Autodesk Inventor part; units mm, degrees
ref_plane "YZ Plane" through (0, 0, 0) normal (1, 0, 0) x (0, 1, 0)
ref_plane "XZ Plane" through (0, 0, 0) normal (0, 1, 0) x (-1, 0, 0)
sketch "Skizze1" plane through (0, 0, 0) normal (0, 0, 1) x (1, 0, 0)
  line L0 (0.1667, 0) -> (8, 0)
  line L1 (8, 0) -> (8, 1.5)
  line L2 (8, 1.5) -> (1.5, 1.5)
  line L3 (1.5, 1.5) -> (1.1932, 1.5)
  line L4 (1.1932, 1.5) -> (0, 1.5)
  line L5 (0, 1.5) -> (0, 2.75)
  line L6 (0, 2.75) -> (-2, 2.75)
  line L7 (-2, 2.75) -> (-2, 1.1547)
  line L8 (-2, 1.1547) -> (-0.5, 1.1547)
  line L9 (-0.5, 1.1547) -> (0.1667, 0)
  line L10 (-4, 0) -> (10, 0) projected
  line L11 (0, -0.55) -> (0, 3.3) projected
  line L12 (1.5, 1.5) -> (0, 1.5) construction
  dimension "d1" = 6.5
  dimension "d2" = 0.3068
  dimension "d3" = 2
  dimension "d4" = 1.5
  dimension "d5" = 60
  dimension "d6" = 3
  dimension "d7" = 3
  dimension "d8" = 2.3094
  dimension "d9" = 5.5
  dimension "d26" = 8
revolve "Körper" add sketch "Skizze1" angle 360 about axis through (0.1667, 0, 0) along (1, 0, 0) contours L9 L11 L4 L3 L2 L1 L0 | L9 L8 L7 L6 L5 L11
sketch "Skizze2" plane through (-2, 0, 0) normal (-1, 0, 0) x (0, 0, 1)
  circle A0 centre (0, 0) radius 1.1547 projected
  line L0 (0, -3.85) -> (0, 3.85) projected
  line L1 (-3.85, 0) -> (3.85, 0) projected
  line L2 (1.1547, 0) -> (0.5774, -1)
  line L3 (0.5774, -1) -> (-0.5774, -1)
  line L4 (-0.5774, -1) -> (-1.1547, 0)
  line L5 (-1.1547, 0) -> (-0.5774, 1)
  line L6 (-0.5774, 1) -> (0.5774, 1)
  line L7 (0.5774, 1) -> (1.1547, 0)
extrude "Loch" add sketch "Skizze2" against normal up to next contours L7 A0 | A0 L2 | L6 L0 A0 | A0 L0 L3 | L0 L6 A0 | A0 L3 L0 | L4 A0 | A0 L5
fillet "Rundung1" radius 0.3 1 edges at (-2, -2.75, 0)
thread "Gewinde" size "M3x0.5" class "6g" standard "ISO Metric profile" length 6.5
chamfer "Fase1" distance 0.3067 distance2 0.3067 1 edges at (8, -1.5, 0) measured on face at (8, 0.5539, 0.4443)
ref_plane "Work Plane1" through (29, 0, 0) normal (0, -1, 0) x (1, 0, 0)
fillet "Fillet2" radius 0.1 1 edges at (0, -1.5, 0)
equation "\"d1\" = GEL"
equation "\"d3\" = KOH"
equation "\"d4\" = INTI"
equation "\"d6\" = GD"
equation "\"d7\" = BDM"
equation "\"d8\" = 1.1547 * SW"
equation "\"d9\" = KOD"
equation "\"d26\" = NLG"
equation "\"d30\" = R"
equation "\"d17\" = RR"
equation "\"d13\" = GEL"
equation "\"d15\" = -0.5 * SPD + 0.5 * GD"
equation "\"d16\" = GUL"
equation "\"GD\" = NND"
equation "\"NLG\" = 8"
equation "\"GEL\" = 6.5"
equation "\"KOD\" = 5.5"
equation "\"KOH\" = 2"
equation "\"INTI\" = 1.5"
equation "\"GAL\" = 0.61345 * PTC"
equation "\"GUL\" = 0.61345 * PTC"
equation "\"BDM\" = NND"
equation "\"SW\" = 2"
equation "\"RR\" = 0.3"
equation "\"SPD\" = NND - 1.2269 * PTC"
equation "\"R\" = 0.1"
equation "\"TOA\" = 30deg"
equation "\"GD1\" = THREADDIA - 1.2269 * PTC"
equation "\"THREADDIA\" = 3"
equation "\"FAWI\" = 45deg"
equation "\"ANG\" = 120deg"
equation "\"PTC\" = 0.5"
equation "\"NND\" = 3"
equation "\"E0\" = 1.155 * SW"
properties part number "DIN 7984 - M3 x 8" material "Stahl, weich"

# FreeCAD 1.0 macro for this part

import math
import FreeCAD as App
import Part
import Sketcher
Q = App.Units.Quantity


def edges_at(feature, points):
    """Names of the edges that pass closest to the given points."""
    edges = feature.Shape.Edges
    near = lambda p: min(range(len(edges)), key=lambda i: edges[i].distToShape(Part.Vertex(*p))[0])
    return sorted({f"Edge{near(p) + 1}" for p in points})

doc = App.newDocument("Part")
body = doc.addObject("PartDesign::Body", "Body")

# Sketch on XY plane
sketch1 = body.newObject("Sketcher::SketchObject", "Sketch")
sketch1.AttachmentSupport = (doc.getObject("XY_Plane"), [""])
sketch1.MapMode = "FlatFace"
sketch1.addGeometry([
    Part.LineSegment(App.Vector(0.2, 0, 0), App.Vector(8, 0, 0)),  # 0
    Part.LineSegment(App.Vector(8, 0, 0), App.Vector(8, 1.5, 0)),  # 1
    Part.LineSegment(App.Vector(8, 1.5, 0), App.Vector(0, 1.5, 0)),  # 2
    Part.LineSegment(App.Vector(0, 1.5, 0), App.Vector(0, 2.8, 0)),  # 3
    Part.LineSegment(App.Vector(0, 2.8, 0), App.Vector(-2, 2.8, 0)),  # 4
    Part.LineSegment(App.Vector(-2, 2.8, 0), App.Vector(-2, 1.2, 0)),  # 5
    Part.LineSegment(App.Vector(-2, 1.2, 0), App.Vector(-0.5, 1.2, 0)),  # 6
    Part.LineSegment(App.Vector(-0.5, 1.2, 0), App.Vector(0.2, 0, 0)),  # 7
], False)
sketch1.addConstraint([
    Sketcher.Constraint("Coincident", 0, 2, 1, 1),
    Sketcher.Constraint("Coincident", 1, 2, 2, 1),
    Sketcher.Constraint("Coincident", 2, 2, 3, 1),
    Sketcher.Constraint("Coincident", 3, 2, 4, 1),
    Sketcher.Constraint("Coincident", 4, 2, 5, 1),
    Sketcher.Constraint("Coincident", 5, 2, 6, 1),
    Sketcher.Constraint("Coincident", 6, 2, 7, 1),
    Sketcher.Constraint("Coincident", 7, 2, 0, 1),
    Sketcher.Constraint("Horizontal", 0),
    Sketcher.Constraint("Vertical", 1),
    Sketcher.Constraint("Horizontal", 2),
    Sketcher.Constraint("Vertical", 3),
    Sketcher.Constraint("Horizontal", 4),
    Sketcher.Constraint("Vertical", 5),
    Sketcher.Constraint("Horizontal", 6),
    Sketcher.Constraint("PointOnObject", 0, 2, -1),
    Sketcher.Constraint("PointOnObject", 2, 2, -2),
    Sketcher.Constraint("Equal", 6, 1),
    Sketcher.Constraint("DistanceX", 2, 2, 2, 1, Q("8 mm")),
    Sketcher.Constraint("DistanceX", 4, 2, 4, 1, Q("2 mm")),
    Sketcher.Constraint("DistanceX", 6, 1, 6, 2, Q("1.5 mm")),
    Sketcher.Constraint("DistanceY", 3, 1, 3, 2, Q("1.25 mm")),
    Sketcher.Constraint("DistanceX", 0, 1, 0, 2, Q("7.8333 mm")),
    Sketcher.Constraint("DistanceY", 5, 2, 5, 1, Q("1.5953 mm")),
])
revolution = body.newObject("PartDesign::Revolution", "Revolution")
revolution.Profile = sketch1
revolution.ReferenceAxis = (sketch1, ["H_Axis"])
revolution.Angle = 360

# Sketch on YZ plane
sketch2 = body.newObject("Sketcher::SketchObject", "Sketch001")
sketch2.AttachmentSupport = (doc.getObject("YZ_Plane"), [""])
sketch2.MapMode = "FlatFace"
sketch2.AttachmentOffset = App.Placement(App.Vector(0, 0, -2), App.Rotation())
sketch2.addGeometry([
    Part.LineSegment(App.Vector(1, 0.6, 0), App.Vector(0, 1.2, 0)),  # 0
    Part.ArcOfCircle(Part.Circle(App.Vector(0, 0, 0), App.Vector(0, 0, 1), 1.2), math.radians(30), math.radians(90)),  # 1
    Part.ArcOfCircle(Part.Circle(App.Vector(0, 0, 0), App.Vector(0, 0, 1), 1.2), math.radians(90), math.radians(150)),  # 2
    Part.LineSegment(App.Vector(0, 1.2, 0), App.Vector(-1, 0.6, 0)),  # 3
    Part.ArcOfCircle(Part.Circle(App.Vector(0, 0, 0), App.Vector(0, 0, 1), 1.2), math.radians(-30), math.radians(30)),  # 4
    Part.LineSegment(App.Vector(1, 0.6, 0), App.Vector(1, -0.6, 0)),  # 5
    Part.LineSegment(App.Vector(-1, 0.6, 0), App.Vector(-1, -0.6, 0)),  # 6
    Part.ArcOfCircle(Part.Circle(App.Vector(0, 0, 0), App.Vector(0, 0, 1), 1.2), math.radians(150), math.radians(210)),  # 7
    Part.LineSegment(App.Vector(-1, -0.6, 0), App.Vector(0, -1.2, 0)),  # 8
    Part.ArcOfCircle(Part.Circle(App.Vector(0, 0, 0), App.Vector(0, 0, 1), 1.2), math.radians(-150), math.radians(-90)),  # 9
    Part.ArcOfCircle(Part.Circle(App.Vector(0, 0, 0), App.Vector(0, 0, 1), 1.2), math.radians(-90), math.radians(-30)),  # 10
    Part.LineSegment(App.Vector(0, -1.2, 0), App.Vector(1, -0.6, 0)),  # 11
], False)
sketch2.addConstraint([
    Sketcher.Constraint("Coincident", 0, 1, 1, 1),
    Sketcher.Constraint("Coincident", 1, 2, 0, 2),
    Sketcher.Constraint("Coincident", 2, 1, 3, 1),
    Sketcher.Constraint("Coincident", 3, 2, 2, 2),
    Sketcher.Constraint("Coincident", 4, 1, 5, 2),
    Sketcher.Constraint("Coincident", 5, 1, 4, 2),
    Sketcher.Constraint("Coincident", 6, 1, 7, 1),
    Sketcher.Constraint("Coincident", 7, 2, 6, 2),
    Sketcher.Constraint("Coincident", 8, 1, 9, 1),
    Sketcher.Constraint("Coincident", 9, 2, 8, 2),
    Sketcher.Constraint("Coincident", 10, 1, 11, 1),
    Sketcher.Constraint("Coincident", 11, 2, 10, 2),
    Sketcher.Constraint("Vertical", 5),
    Sketcher.Constraint("Vertical", 6),
    Sketcher.Constraint("Coincident", 1, 3, -1, 1),
    Sketcher.Constraint("Coincident", 2, 3, -1, 1),
    Sketcher.Constraint("Coincident", 4, 3, -1, 1),
    Sketcher.Constraint("Coincident", 7, 3, -1, 1),
    Sketcher.Constraint("Coincident", 9, 3, -1, 1),
    Sketcher.Constraint("Coincident", 10, 3, -1, 1),
    Sketcher.Constraint("Coincident", 2, 1, 1, 2),
    Sketcher.Constraint("Coincident", 5, 1, 0, 1),
    Sketcher.Constraint("Coincident", 6, 1, 3, 2),
    Sketcher.Constraint("Coincident", 8, 1, 7, 2),
    Sketcher.Constraint("Coincident", 10, 1, 9, 2),
    Sketcher.Constraint("PointOnObject", 1, 2, -2),
    Sketcher.Constraint("PointOnObject", 9, 2, -2),
    Sketcher.Constraint("Parallel", 0, 8),
    Sketcher.Constraint("Parallel", 3, 11),
    Sketcher.Constraint("DistanceX", -1, 1, 0, 1, Q("1 mm")),
    Sketcher.Constraint("Radius", 1, Q("1.1547 mm")),
])
pad1 = body.newObject("PartDesign::Pad", "Pad")
pad1.Profile = sketch2
pad1.Type = "UpToFirst"
doc.recompute()

fillet = body.newObject("PartDesign::Fillet", "Fillet")
fillet.Base = (pad1, edges_at(pad1, [(-2, -2.75, 0)]))
fillet.Radius = 0.3
doc.recompute()

chamfer = body.newObject("PartDesign::Chamfer", "Chamfer")
chamfer.Base = (fillet, edges_at(fillet, [(8, -1.5, 0)]))
chamfer.ChamferType = "Two distances"
chamfer.Size = 0.3067
chamfer.Size2 = 0.3067
doc.recompute()

fillet2 = body.newObject("PartDesign::Fillet", "Fillet001")
fillet2.Base = (chamfer, edges_at(chamfer, [(0, -1.5, 0)]))
fillet2.Radius = 0.1

doc.recompute()
